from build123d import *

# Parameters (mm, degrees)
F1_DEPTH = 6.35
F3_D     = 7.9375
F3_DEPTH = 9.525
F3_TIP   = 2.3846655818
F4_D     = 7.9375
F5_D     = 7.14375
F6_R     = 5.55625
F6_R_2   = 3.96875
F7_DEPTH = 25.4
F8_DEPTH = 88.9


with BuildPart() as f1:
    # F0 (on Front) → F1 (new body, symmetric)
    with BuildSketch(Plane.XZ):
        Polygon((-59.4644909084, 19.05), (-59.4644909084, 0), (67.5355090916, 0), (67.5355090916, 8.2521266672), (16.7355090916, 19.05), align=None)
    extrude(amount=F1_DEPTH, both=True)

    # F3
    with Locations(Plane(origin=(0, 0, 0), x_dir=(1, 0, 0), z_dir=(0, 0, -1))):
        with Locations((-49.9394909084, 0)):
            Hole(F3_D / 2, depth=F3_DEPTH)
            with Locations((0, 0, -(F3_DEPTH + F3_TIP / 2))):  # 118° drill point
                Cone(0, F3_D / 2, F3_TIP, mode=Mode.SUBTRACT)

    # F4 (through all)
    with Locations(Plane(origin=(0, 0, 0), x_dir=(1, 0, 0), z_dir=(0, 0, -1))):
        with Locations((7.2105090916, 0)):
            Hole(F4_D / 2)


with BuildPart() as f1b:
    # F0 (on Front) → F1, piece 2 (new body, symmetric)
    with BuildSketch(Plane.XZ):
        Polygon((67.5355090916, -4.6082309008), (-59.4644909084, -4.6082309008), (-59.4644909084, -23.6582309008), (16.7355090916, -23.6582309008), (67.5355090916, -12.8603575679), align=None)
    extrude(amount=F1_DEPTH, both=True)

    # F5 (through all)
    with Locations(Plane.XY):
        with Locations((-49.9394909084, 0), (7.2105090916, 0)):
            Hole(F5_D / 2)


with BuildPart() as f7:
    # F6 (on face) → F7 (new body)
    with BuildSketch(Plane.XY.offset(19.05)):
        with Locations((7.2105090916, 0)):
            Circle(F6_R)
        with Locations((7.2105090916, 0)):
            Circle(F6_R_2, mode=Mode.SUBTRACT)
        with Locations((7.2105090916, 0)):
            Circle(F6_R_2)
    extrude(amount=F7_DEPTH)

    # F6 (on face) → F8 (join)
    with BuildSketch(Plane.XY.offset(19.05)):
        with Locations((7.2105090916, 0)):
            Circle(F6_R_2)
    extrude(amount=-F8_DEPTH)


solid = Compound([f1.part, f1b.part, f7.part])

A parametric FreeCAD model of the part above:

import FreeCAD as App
import Part
import Sketcher
from FreeCAD import Vector
Q = App.Units.Quantity


def add_polygon(sketch, points):
    """Adds a closed chain of lines whose ends are joined by coincident constraints."""
    first, n = sketch.GeometryCount, len(points)
    for a, b in zip(points, points[1:] + points[:1]):
        sketch.addGeometry(Part.LineSegment(App.Vector(*a, 0), App.Vector(*b, 0)), False)
    for i in range(n):
        sketch.addConstraint(Sketcher.Constraint("Coincident", first + i, 2, first + (i + 1) % n, 1))

doc = App.newDocument("Part")
body = doc.addObject("PartDesign::Body", "Body")

# Sketch on XZ plane
sketch1 = body.newObject("Sketcher::SketchObject", "Sketch")
sketch1.AttachmentSupport = (doc.getObject("XZ_Plane"), [""])
sketch1.MapMode = "FlatFace"
add_polygon(sketch1, [(-59, 19), (-59, 0), (68, 0), (68, 8), (17, 19)])  # lines 0-4
sketch1.addConstraint(Sketcher.Constraint("Vertical", 0))
sketch1.addConstraint(Sketcher.Constraint("Horizontal", 1))
sketch1.addConstraint(Sketcher.Constraint("Vertical", 2))
sketch1.addConstraint(Sketcher.Constraint("Horizontal", 4))
sketch1.addConstraint(Sketcher.Constraint("PointOnObject", 0, 2, -1))
sketch1.addConstraint(Sketcher.Constraint("DistanceX", 1, 1, 1, 2, Q("5 in")))
sketch1.addConstraint(Sketcher.Constraint("DistanceX", 4, 2, 4, 1, Q("3 in")))
sketch1.addConstraint(Sketcher.Constraint("Angle", 3, Q("168 deg")))
sketch1.addConstraint(Sketcher.Constraint("DistanceY", 0, 2, 0, 1, Q("0.75 in")))
sketch1.addConstraint(Sketcher.Constraint("DistanceX", 0, 2, -1, 1, 59.464491))
pad1 = body.newObject("PartDesign::Pad", "Pad")
pad1.Profile = sketch1
pad1.Length = Q("0.5 in")
pad1.Midplane = True

# Sketch on XY plane
sketch2 = body.newObject("Sketcher::SketchObject", "Sketch001")
sketch2.AttachmentSupport = (doc.getObject("XY_Plane"), [""])
sketch2.MapMode = "FlatFace"
sketch2.addGeometry(Part.Circle(Vector(-49.9, 0, 0), Vector(0, 0, 1), 4), False)
sketch2.addConstraint(Sketcher.Constraint("PointOnObject", 0, 3, -1))
sketch2.addConstraint(Sketcher.Constraint("Diameter", 0, Q("0.3125 in")))
sketch2.addConstraint(Sketcher.Constraint("DistanceX", 0, 3, -1, 1, 49.939491))
doc.recompute()
hole = body.newObject("PartDesign::Hole", "Hole")
hole.Profile = sketch2
hole.ThreadType = "None"
hole.Diameter = Q("0.3125 in")
hole.DepthType = "Dimension"
hole.Depth = Q("0.375 in")
hole.DrillPoint = "Angled"
hole.DrillPointAngle = 118
hole.Reversed = True

# Sketch on XY plane
sketch3 = body.newObject("Sketcher::SketchObject", "Sketch002")
sketch3.AttachmentSupport = (doc.getObject("XY_Plane"), [""])
sketch3.MapMode = "FlatFace"
sketch3.addGeometry(Part.Circle(Vector(7.2, 0, 0), Vector(0, 0, 1), 4), False)
sketch3.addConstraint(Sketcher.Constraint("PointOnObject", 0, 3, -1))
sketch3.addConstraint(Sketcher.Constraint("Diameter", 0, Q("0.3125 in")))
sketch3.addConstraint(Sketcher.Constraint("DistanceX", -1, 1, 0, 3, 7.210509))
doc.recompute()
hole2 = body.newObject("PartDesign::Hole", "Hole001")
hole2.Profile = sketch3
hole2.ThreadType = "None"
hole2.Diameter = Q("0.3125 in")
hole2.DepthType = "ThroughAll"
hole2.Reversed = True
body2 = doc.addObject("PartDesign::Body", "Body001")

# Sketch on XZ plane
sketch4 = body2.newObject("Sketcher::SketchObject", "Sketch003")
sketch4.AttachmentSupport = (doc.getObject("XZ_Plane001"), [""])
sketch4.MapMode = "FlatFace"
add_polygon(sketch4, [(68, -5), (-59, -5), (-59, -24), (17, -24), (68, -13)])  # lines 0-4
sketch4.addConstraint(Sketcher.Constraint("Horizontal", 0))
sketch4.addConstraint(Sketcher.Constraint("Vertical", 1))
sketch4.addConstraint(Sketcher.Constraint("Horizontal", 2))
sketch4.addConstraint(Sketcher.Constraint("Vertical", 4))
sketch4.addConstraint(Sketcher.Constraint("DistanceX", 0, 2, 0, 1, Q("5 in")))
sketch4.addConstraint(Sketcher.Constraint("DistanceX", 2, 1, 2, 2, Q("3 in")))
sketch4.addConstraint(Sketcher.Constraint("Angle", 3, Q("12 deg")))
sketch4.addConstraint(Sketcher.Constraint("DistanceY", 1, 2, 1, 1, Q("0.75 in")))
sketch4.addConstraint(Sketcher.Constraint("DistanceX", 0, 2, -1, 1, 59.464491))
sketch4.addConstraint(Sketcher.Constraint("DistanceY", 0, 2, -1, 1, 4.608231))
pad2 = body2.newObject("PartDesign::Pad", "Pad001")
pad2.Profile = sketch4
pad2.Length = Q("0.5 in")
pad2.Midplane = True

# Sketch on XY plane
sketch5 = body2.newObject("Sketcher::SketchObject", "Sketch004")
sketch5.AttachmentSupport = (doc.getObject("XY_Plane001"), [""])
sketch5.MapMode = "FlatFace"
sketch5.addGeometry(Part.Circle(Vector(-49.9, 0, 0), Vector(0, 0, 1), 3.6), False)
sketch5.addGeometry(Part.Circle(Vector(7.2, 0, 0), Vector(0, 0, 1), 3.6), False)
sketch5.addConstraint(Sketcher.Constraint("Equal", 0, 1))
sketch5.addConstraint(Sketcher.Constraint("PointOnObject", 0, 3, -1))
sketch5.addConstraint(Sketcher.Constraint("PointOnObject", 1, 3, -1))
sketch5.addConstraint(Sketcher.Constraint("Diameter", 0, Q("0.28125 in")))
sketch5.addConstraint(Sketcher.Constraint("DistanceX", 0, 3, 1, 3, Q("2.25 in")))
sketch5.addConstraint(Sketcher.Constraint("DistanceX", 0, 3, -1, 1, 49.939491))
doc.recompute()
hole3 = body2.newObject("PartDesign::Hole", "Hole002")
hole3.Profile = sketch5
hole3.ThreadType = "None"
hole3.Diameter = Q("0.28125 in")
hole3.DepthType = "ThroughAll"
body3 = doc.addObject("PartDesign::Body", "Body002")

# Sketch on XY plane
sketch6 = body3.newObject("Sketcher::SketchObject", "Sketch005")
sketch6.AttachmentSupport = (doc.getObject("XY_Plane002"), [""])
sketch6.MapMode = "FlatFace"
sketch6.AttachmentOffset = App.Placement(Vector(0, 0, 0.75 * 25.4), App.Rotation())
sketch6.addGeometry(Part.Circle(Vector(7, 0, 0), Vector(0, 0, 1), 6), False)
sketch6.addConstraint(Sketcher.Constraint("PointOnObject", 0, 3, -1))
sketch6.addConstraint(Sketcher.Constraint("Diameter", 0, Q("0.4375 in")))
sketch6.addConstraint(Sketcher.Constraint("DistanceX", -1, 1, 0, 3, 7.210509))
pad3 = body3.newObject("PartDesign::Pad", "Pad002")
pad3.Profile = sketch6
pad3.Length = Q("1 in")

# Sketch on XY plane
sketch7 = body3.newObject("Sketcher::SketchObject", "Sketch006")
sketch7.AttachmentSupport = (doc.getObject("XY_Plane002"), [""])
sketch7.MapMode = "FlatFace"
sketch7.AttachmentOffset = App.Placement(Vector(0, 0, 0.75 * 25.4), App.Rotation())
sketch7.addGeometry(Part.Circle(Vector(7.2, 0, 0), Vector(0, 0, 1), 4), False)
sketch7.addConstraint(Sketcher.Constraint("PointOnObject", 0, 3, -1))
sketch7.addConstraint(Sketcher.Constraint("Diameter", 0, Q("0.3125 in")))
sketch7.addConstraint(Sketcher.Constraint("DistanceX", -1, 1, 0, 3, 7.210509))
pad4 = body3.newObject("PartDesign::Pad", "Pad003")
pad4.Profile = sketch7
pad4.Length = Q("3.5 in")
pad4.Reversed = True

doc.recompute()
